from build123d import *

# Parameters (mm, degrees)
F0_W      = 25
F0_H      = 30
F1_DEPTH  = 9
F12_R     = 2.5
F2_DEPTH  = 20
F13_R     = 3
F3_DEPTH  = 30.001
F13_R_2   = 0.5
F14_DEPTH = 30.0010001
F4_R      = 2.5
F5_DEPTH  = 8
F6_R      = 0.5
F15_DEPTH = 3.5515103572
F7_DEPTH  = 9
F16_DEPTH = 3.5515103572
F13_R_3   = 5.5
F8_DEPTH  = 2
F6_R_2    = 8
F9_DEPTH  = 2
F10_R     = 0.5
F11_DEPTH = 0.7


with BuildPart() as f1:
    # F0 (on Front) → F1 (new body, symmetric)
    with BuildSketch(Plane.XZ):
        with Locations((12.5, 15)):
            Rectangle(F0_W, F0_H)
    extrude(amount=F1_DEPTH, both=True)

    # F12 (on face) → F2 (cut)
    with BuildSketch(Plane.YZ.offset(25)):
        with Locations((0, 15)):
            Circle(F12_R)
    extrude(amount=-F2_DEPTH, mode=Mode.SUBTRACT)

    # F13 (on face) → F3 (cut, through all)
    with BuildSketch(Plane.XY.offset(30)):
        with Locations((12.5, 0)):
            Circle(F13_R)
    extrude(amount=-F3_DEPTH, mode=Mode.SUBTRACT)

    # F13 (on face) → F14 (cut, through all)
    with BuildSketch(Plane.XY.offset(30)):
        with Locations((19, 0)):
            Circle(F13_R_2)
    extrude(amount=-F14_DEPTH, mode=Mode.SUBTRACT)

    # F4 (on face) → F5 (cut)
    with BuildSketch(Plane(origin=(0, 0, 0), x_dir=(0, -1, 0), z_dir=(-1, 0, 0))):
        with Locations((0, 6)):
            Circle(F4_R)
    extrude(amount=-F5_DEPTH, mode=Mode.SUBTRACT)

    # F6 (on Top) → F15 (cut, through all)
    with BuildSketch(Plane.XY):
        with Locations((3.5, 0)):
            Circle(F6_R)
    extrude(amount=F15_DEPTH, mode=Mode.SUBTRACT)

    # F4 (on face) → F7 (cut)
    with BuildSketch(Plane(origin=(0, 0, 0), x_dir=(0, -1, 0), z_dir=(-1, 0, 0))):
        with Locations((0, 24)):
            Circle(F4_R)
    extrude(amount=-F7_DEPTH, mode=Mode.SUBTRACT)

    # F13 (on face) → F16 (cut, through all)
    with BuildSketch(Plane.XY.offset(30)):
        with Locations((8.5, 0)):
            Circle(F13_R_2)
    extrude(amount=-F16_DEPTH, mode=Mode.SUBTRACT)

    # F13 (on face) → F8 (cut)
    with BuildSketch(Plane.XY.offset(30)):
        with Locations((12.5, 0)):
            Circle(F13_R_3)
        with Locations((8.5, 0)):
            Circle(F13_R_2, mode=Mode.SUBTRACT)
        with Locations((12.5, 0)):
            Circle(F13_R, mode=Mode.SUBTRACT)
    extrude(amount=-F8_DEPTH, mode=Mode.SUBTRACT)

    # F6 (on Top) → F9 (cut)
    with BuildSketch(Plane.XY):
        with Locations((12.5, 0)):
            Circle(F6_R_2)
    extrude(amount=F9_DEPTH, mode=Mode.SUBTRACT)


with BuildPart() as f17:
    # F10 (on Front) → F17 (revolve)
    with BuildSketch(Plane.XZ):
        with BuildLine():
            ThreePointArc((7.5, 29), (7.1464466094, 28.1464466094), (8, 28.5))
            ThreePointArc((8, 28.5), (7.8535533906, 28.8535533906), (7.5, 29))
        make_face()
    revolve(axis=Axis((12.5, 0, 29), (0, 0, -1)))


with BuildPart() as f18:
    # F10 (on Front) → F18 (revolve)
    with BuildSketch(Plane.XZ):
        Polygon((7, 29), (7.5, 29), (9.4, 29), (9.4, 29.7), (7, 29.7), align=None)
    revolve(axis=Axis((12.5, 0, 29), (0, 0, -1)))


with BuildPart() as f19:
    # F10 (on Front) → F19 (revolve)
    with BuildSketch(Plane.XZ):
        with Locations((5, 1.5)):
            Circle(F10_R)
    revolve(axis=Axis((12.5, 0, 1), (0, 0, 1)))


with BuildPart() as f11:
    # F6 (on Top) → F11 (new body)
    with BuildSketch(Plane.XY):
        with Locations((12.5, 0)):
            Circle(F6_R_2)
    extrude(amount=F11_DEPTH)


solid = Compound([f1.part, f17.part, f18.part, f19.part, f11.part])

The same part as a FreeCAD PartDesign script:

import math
import FreeCAD as App
import Part
import Sketcher
from FreeCAD import Vector
Q = App.Units.Quantity


def add_polygon(sketch, points):
    """Adds a closed chain of lines whose ends are joined by coincident constraints."""
    first, n = sketch.GeometryCount, len(points)
    for a, b in zip(points, points[1:] + points[:1]):
        sketch.addGeometry(Part.LineSegment(App.Vector(*a, 0), App.Vector(*b, 0)), False)
    for i in range(n):
        sketch.addConstraint(Sketcher.Constraint("Coincident", first + i, 2, first + (i + 1) % n, 1))

doc = App.newDocument("Part")
body = doc.addObject("PartDesign::Body", "Body")

# Sketch on XZ plane
sketch1 = body.newObject("Sketcher::SketchObject", "Sketch")
sketch1.AttachmentSupport = (doc.getObject("XZ_Plane"), [""])
sketch1.MapMode = "FlatFace"
add_polygon(sketch1, [(0, 30), (0, 0), (25, 0), (25, 30)])  # lines 0-3
sketch1.addConstraint(Sketcher.Constraint("Vertical", 0))
sketch1.addConstraint(Sketcher.Constraint("Horizontal", 1))
sketch1.addConstraint(Sketcher.Constraint("Vertical", 2))
sketch1.addConstraint(Sketcher.Constraint("Horizontal", 3))
sketch1.addConstraint(Sketcher.Constraint("Coincident", 0, 2, -1, 1))
sketch1.addConstraint(Sketcher.Constraint("DistanceX", 1, 1, 1, 2, Q("25 mm")))
sketch1.addConstraint(Sketcher.Constraint("DistanceY", 0, 2, 0, 1, Q("30 mm")))
pad1 = body.newObject("PartDesign::Pad", "Pad")
pad1.Profile = sketch1
pad1.Length = 18
pad1.Midplane = True

# Sketch on YZ plane
sketch2 = body.newObject("Sketcher::SketchObject", "Sketch001")
sketch2.AttachmentSupport = (doc.getObject("YZ_Plane"), [""])
sketch2.MapMode = "FlatFace"
sketch2.AttachmentOffset = App.Placement(Vector(0, 0, 25), App.Rotation())
sketch2.addGeometry(Part.Circle(Vector(0, 15, 0), Vector(0, 0, 1), 2.5), False)
sketch2.addConstraint(Sketcher.Constraint("PointOnObject", 0, 3, -2))
sketch2.addConstraint(Sketcher.Constraint("Diameter", 0, Q("5 mm")))
sketch2.addConstraint(Sketcher.Constraint("DistanceY", -1, 1, 0, 3, Q("15 mm")))
pocket1 = body.newObject("PartDesign::Pocket", "Pocket")
pocket1.Profile = sketch2
pocket1.Length = 20

# Sketch on XY plane
sketch3 = body.newObject("Sketcher::SketchObject", "Sketch002")
sketch3.AttachmentSupport = (doc.getObject("XY_Plane"), [""])
sketch3.MapMode = "FlatFace"
sketch3.AttachmentOffset = App.Placement(Vector(0, 0, 30), App.Rotation())
sketch3.addGeometry(Part.Circle(Vector(12.5, 0, 0), Vector(0, 0, 1), 3), False)
sketch3.addConstraint(Sketcher.Constraint("PointOnObject", 0, 3, -1))
sketch3.addConstraint(Sketcher.Constraint("Diameter", 0, Q("6 mm")))
sketch3.addConstraint(Sketcher.Constraint("DistanceX", -1, 1, 0, 3, Q("12.5 mm")))
pocket2 = body.newObject("PartDesign::Pocket", "Pocket001")
pocket2.Profile = sketch3
pocket2.Type = "ThroughAll"

# Sketch on XY plane
sketch4 = body.newObject("Sketcher::SketchObject", "Sketch003")
sketch4.AttachmentSupport = (doc.getObject("XY_Plane"), [""])
sketch4.MapMode = "FlatFace"
sketch4.AttachmentOffset = App.Placement(Vector(0, 0, 30), App.Rotation())
sketch4.addGeometry(Part.Circle(Vector(19, 0, 0), Vector(0, 0, 1), 0.5), False)
sketch4.addConstraint(Sketcher.Constraint("PointOnObject", 0, 3, -1))
sketch4.addConstraint(Sketcher.Constraint("Diameter", 0, Q("1 mm")))
sketch4.addConstraint(Sketcher.Constraint("DistanceX", -1, 1, 0, 3, Q("19 mm")))
pocket3 = body.newObject("PartDesign::Pocket", "Pocket002")
pocket3.Profile = sketch4
pocket3.Type = "ThroughAll"

# Sketch on YZ plane
sketch5 = body.newObject("Sketcher::SketchObject", "Sketch004")
sketch5.AttachmentSupport = (doc.getObject("YZ_Plane"), [""])
sketch5.MapMode = "FlatFace"
sketch5.addGeometry(Part.Circle(Vector(0, 6, 0), Vector(0, 0, 1), 2.5), False)
sketch5.addConstraint(Sketcher.Constraint("PointOnObject", 0, 3, -2))
sketch5.addConstraint(Sketcher.Constraint("Diameter", 0, Q("5 mm")))
sketch5.addConstraint(Sketcher.Constraint("DistanceY", -1, 1, 0, 3, Q("6 mm")))
pocket4 = body.newObject("PartDesign::Pocket", "Pocket003")
pocket4.Profile = sketch5
pocket4.Length = 8
pocket4.Reversed = True

# Sketch on XY plane
sketch6 = body.newObject("Sketcher::SketchObject", "Sketch005")
sketch6.AttachmentSupport = (doc.getObject("XY_Plane"), [""])
sketch6.MapMode = "FlatFace"
sketch6.addGeometry(Part.Circle(Vector(3.5, 0, 0), Vector(0, 0, 1), 0.5), False)
sketch6.addConstraint(Sketcher.Constraint("PointOnObject", 0, 3, -1))
sketch6.addConstraint(Sketcher.Constraint("Diameter", 0, Q("1 mm")))
sketch6.addConstraint(Sketcher.Constraint("DistanceX", -1, 1, 0, 3, Q("3.5 mm")))
pocket5 = body.newObject("PartDesign::Pocket", "Pocket004")
pocket5.Profile = sketch6
pocket5.Length = 3.55151
pocket5.Reversed = True

# Sketch on YZ plane
sketch7 = body.newObject("Sketcher::SketchObject", "Sketch006")
sketch7.AttachmentSupport = (doc.getObject("YZ_Plane"), [""])
sketch7.MapMode = "FlatFace"
sketch7.addGeometry(Part.Circle(Vector(0, 24, 0), Vector(0, 0, 1), 2.5), False)
sketch7.addConstraint(Sketcher.Constraint("PointOnObject", 0, 3, -2))
sketch7.addConstraint(Sketcher.Constraint("Diameter", 0, Q("5 mm")))
sketch7.addConstraint(Sketcher.Constraint("DistanceY", -1, 1, 0, 3, Q("24 mm")))
pocket6 = body.newObject("PartDesign::Pocket", "Pocket005")
pocket6.Profile = sketch7
pocket6.Length = 9
pocket6.Reversed = True

# Sketch on XY plane
sketch8 = body.newObject("Sketcher::SketchObject", "Sketch007")
sketch8.AttachmentSupport = (doc.getObject("XY_Plane"), [""])
sketch8.MapMode = "FlatFace"
sketch8.AttachmentOffset = App.Placement(Vector(0, 0, 30), App.Rotation())
sketch8.addGeometry(Part.Circle(Vector(8.5, 0, 0), Vector(0, 0, 1), 0.5), False)
sketch8.addConstraint(Sketcher.Constraint("PointOnObject", 0, 3, -1))
sketch8.addConstraint(Sketcher.Constraint("Diameter", 0, Q("1 mm")))
sketch8.addConstraint(Sketcher.Constraint("DistanceX", -1, 1, 0, 3, Q("8.5 mm")))
pocket7 = body.newObject("PartDesign::Pocket", "Pocket006")
pocket7.Profile = sketch8
pocket7.Length = 3.55151

# Sketch on XY plane
sketch9 = body.newObject("Sketcher::SketchObject", "Sketch008")
sketch9.AttachmentSupport = (doc.getObject("XY_Plane"), [""])
sketch9.MapMode = "FlatFace"
sketch9.AttachmentOffset = App.Placement(Vector(0, 0, 30), App.Rotation())
sketch9.addGeometry(Part.Circle(Vector(12.5, 0, 0), Vector(0, 0, 1), 5.5), False)
sketch9.addGeometry(Part.Circle(Vector(8.5, 0, 0), Vector(0, 0, 1), 0.5), False)
sketch9.addGeometry(Part.Circle(Vector(12.5, 0, 0), Vector(0, 0, 1), 3), False)
sketch9.addConstraint(Sketcher.Constraint("Coincident", 2, 3, 0, 3))
sketch9.addConstraint(Sketcher.Constraint("PointOnObject", 0, 3, -1))
sketch9.addConstraint(Sketcher.Constraint("PointOnObject", 1, 3, -1))
sketch9.addConstraint(Sketcher.Constraint("Diameter", 0, Q("11 mm")))
sketch9.addConstraint(Sketcher.Constraint("Diameter", 1, Q("1 mm")))
sketch9.addConstraint(Sketcher.Constraint("Diameter", 2, Q("6 mm")))
sketch9.addConstraint(Sketcher.Constraint("DistanceX", 1, 3, 0, 3, Q("4 mm")))
sketch9.addConstraint(Sketcher.Constraint("DistanceX", -1, 1, 0, 3, Q("12.5 mm")))
pocket8 = body.newObject("PartDesign::Pocket", "Pocket007")
pocket8.Profile = sketch9
pocket8.Length = 2

# Sketch on XY plane
sketch10 = body.newObject("Sketcher::SketchObject", "Sketch009")
sketch10.AttachmentSupport = (doc.getObject("XY_Plane"), [""])
sketch10.MapMode = "FlatFace"
sketch10.addGeometry(Part.Circle(Vector(12, 0, 0), Vector(0, 0, 1), 8), False)
sketch10.addConstraint(Sketcher.Constraint("PointOnObject", 0, 3, -1))
sketch10.addConstraint(Sketcher.Constraint("Diameter", 0, Q("16 mm")))
sketch10.addConstraint(Sketcher.Constraint("DistanceX", -1, 1, 0, 3, Q("12.5 mm")))
pocket9 = body.newObject("PartDesign::Pocket", "Pocket008")
pocket9.Profile = sketch10
pocket9.Length = 2
pocket9.Reversed = True
body2 = doc.addObject("PartDesign::Body", "Body001")

# Sketch on XZ plane
sketch11 = body2.newObject("Sketcher::SketchObject", "Sketch010")
sketch11.AttachmentSupport = (doc.getObject("XZ_Plane001"), [""])
sketch11.MapMode = "FlatFace"
sketch11.addGeometry(Part.ArcOfCircle(Part.Circle(Vector(7.5, 28.5, 0), Vector(0, 0, 1), 0.5), math.radians(90), math.radians(360)), False)
sketch11.addGeometry(Part.ArcOfCircle(Part.Circle(Vector(7.5, 28.5, 0), Vector(0, 0, 1), 0.5), math.radians(0), math.radians(90)), False)
sketch11.addGeometry(Part.LineSegment(Vector(12.5, 29, 0), Vector(12.5, 28.5, 0)), True)  # axis
sketch11.addConstraint(Sketcher.Constraint("Tangent", 0, 1, 1, 2))
sketch11.addConstraint(Sketcher.Constraint("Coincident", 1, 1, 0, 2))
sketch11.addConstraint(Sketcher.Constraint("Vertical", 2))
sketch11.addConstraint(Sketcher.Constraint("Horizontal", 0, 3, 1, 1))
sketch11.addConstraint(Sketcher.Constraint("Horizontal", 0, 1, 2, 1))
sketch11.addConstraint(Sketcher.Constraint("Horizontal", 1, 1, 2, 2))
sketch11.addConstraint(Sketcher.Constraint("Vertical", 1, 3, 0, 1))
sketch11.addConstraint(Sketcher.Constraint("Radius", 0, Q("0.5 mm")))
sketch11.addConstraint(Sketcher.Constraint("DistanceY", -1, 1, 0, 1, Q("29 mm")))
sketch11.addConstraint(Sketcher.Constraint("DistanceX", -1, 1, 1, 1, Q("8 mm")))
sketch11.addConstraint(Sketcher.Constraint("DistanceX", 0, 1, 2, 1, Q("5 mm")))
revolution = body2.newObject("PartDesign::Revolution", "Revolution")
revolution.Profile = sketch11
revolution.ReferenceAxis = (sketch11, ["Axis0"])
revolution.Angle = 360
body3 = doc.addObject("PartDesign::Body", "Body002")

# Sketch on XZ plane
sketch12 = body3.newObject("Sketcher::SketchObject", "Sketch011")
sketch12.AttachmentSupport = (doc.getObject("XZ_Plane002"), [""])
sketch12.MapMode = "FlatFace"
add_polygon(sketch12, [(7, 29), (9.4, 29), (9.4, 29.7), (7, 29.7)])  # lines 0-3
sketch12.addGeometry(Part.LineSegment(Vector(12.5, 29.7, 0), Vector(12.5, 29, 0)), True)  # axis
sketch12.addConstraint(Sketcher.Constraint("Horizontal", 0))
sketch12.addConstraint(Sketcher.Constraint("Vertical", 1))
sketch12.addConstraint(Sketcher.Constraint("Horizontal", 2))
sketch12.addConstraint(Sketcher.Constraint("Vertical", 3))
sketch12.addConstraint(Sketcher.Constraint("Vertical", 4))
sketch12.addConstraint(Sketcher.Constraint("Horizontal", 2, 2, 4, 1))
sketch12.addConstraint(Sketcher.Constraint("Horizontal", 3, 2, 4, 2))
sketch12.addConstraint(Sketcher.Constraint("DistanceX", 0, 1, 0, 2, Q("2.4 mm")))
sketch12.addConstraint(Sketcher.Constraint("DistanceY", 1, 1, 1, 2, Q("0.7 mm")))
sketch12.addConstraint(Sketcher.Constraint("DistanceY", -1, 1, 0, 2, Q("29 mm")))
sketch12.addConstraint(Sketcher.Constraint("DistanceX", -1, 1, 2, 2, Q("7 mm")))
sketch12.addConstraint(Sketcher.Constraint("DistanceX", -1, 1, 4, 1, Q("12.5 mm")))
revolution2 = body3.newObject("PartDesign::Revolution", "Revolution001")
revolution2.Profile = sketch12
revolution2.ReferenceAxis = (sketch12, ["Axis0"])
revolution2.Angle = 360
body4 = doc.addObject("PartDesign::Body", "Body003")

# Sketch on XZ plane
sketch13 = body4.newObject("Sketcher::SketchObject", "Sketch012")
sketch13.AttachmentSupport = (doc.getObject("XZ_Plane003"), [""])
sketch13.MapMode = "FlatFace"
sketch13.addGeometry(Part.Circle(Vector(5, 1.5, 0), Vector(0, 0, 1), 0.5), False)
sketch13.addGeometry(Part.LineSegment(Vector(12.5, 1.5, 0), Vector(12.5, 11.5, 0)), True)  # axis
sketch13.addConstraint(Sketcher.Constraint("Vertical", 1))
sketch13.addConstraint(Sketcher.Constraint("Horizontal", 0, 3, 1, 1))
sketch13.addConstraint(Sketcher.Constraint("Diameter", 0, Q("1 mm")))
sketch13.addConstraint(Sketcher.Constraint("DistanceY", 1, 1, 1, 2, Q("10 mm")))
sketch13.addConstraint(Sketcher.Constraint("DistanceX", -1, 1, 0, 3, Q("5 mm")))
sketch13.addConstraint(Sketcher.Constraint("DistanceY", -1, 1, 0, 3, Q("1.5 mm")))
sketch13.addConstraint(Sketcher.Constraint("DistanceX", -1, 1, 1, 1, Q("12.5 mm")))
revolution3 = body4.newObject("PartDesign::Revolution", "Revolution002")
revolution3.Profile = sketch13
revolution3.ReferenceAxis = (sketch13, ["Axis0"])
revolution3.Angle = 360
body5 = doc.addObject("PartDesign::Body", "Body004")

# Sketch on XY plane
sketch14 = body5.newObject("Sketcher::SketchObject", "Sketch013")
sketch14.AttachmentSupport = (doc.getObject("XY_Plane004"), [""])
sketch14.MapMode = "FlatFace"
sketch14.addGeometry(Part.Circle(Vector(12, 0, 0), Vector(0, 0, 1), 8), False)
sketch14.addConstraint(Sketcher.Constraint("PointOnObject", 0, 3, -1))
sketch14.addConstraint(Sketcher.Constraint("Diameter", 0, Q("16 mm")))
sketch14.addConstraint(Sketcher.Constraint("DistanceX", -1, 1, 0, 3, Q("12.5 mm")))
pad2 = body5.newObject("PartDesign::Pad", "Pad001")
pad2.Profile = sketch14
pad2.Length = 0.7

doc.recompute()
